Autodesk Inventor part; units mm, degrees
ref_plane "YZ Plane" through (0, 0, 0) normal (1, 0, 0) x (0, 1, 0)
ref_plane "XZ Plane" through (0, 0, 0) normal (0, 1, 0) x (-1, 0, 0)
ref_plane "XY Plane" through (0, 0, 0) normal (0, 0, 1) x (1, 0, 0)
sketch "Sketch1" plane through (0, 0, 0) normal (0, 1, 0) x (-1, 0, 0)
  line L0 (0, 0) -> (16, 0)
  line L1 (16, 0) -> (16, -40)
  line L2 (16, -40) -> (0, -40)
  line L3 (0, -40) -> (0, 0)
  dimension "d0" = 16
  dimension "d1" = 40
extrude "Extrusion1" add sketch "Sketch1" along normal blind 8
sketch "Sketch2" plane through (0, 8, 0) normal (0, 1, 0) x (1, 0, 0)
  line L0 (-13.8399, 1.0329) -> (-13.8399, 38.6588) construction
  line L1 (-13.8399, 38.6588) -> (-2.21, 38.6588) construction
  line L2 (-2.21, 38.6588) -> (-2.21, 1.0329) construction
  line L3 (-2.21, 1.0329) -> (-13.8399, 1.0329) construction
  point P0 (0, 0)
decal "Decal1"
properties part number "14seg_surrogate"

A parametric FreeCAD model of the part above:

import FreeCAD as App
import Part
import Sketcher
from FreeCAD import Vector


def add_polygon(sketch, points):
    """Adds a closed chain of lines whose ends are joined by coincident constraints."""
    first, n = sketch.GeometryCount, len(points)
    for a, b in zip(points, points[1:] + points[:1]):
        sketch.addGeometry(Part.LineSegment(App.Vector(*a, 0), App.Vector(*b, 0)), False)
    for i in range(n):
        sketch.addConstraint(Sketcher.Constraint("Coincident", first + i, 2, first + (i + 1) % n, 1))

doc = App.newDocument("Part")
body = doc.addObject("PartDesign::Body", "Body")

# Sketch on XZ plane
sketch1 = body.newObject("Sketcher::SketchObject", "Sketch")
sketch1.AttachmentSupport = (doc.getObject("XZ_Plane"), [""])
sketch1.MapMode = "FlatFace"
add_polygon(sketch1, [(-16, 0), (0, 0), (0, -40), (-16, -40)])  # lines 0-3
sketch1.addConstraint([
    Sketcher.Constraint("Horizontal", 0),
    Sketcher.Constraint("Vertical", 1),
    Sketcher.Constraint("Horizontal", 2),
    Sketcher.Constraint("Vertical", 3),
    Sketcher.Constraint("Coincident", 0, 2, -1, 1),
    Sketcher.Constraint("DistanceX", 0, 1, 0, 2, 16.0),
    Sketcher.Constraint("DistanceY", 1, 2, 1, 1, 40.0),
])
pad1 = body.newObject("PartDesign::Pad", "Pad")
pad1.Profile = sketch1
pad1.Length = 8
pad1.Reversed = True

doc.recompute()
